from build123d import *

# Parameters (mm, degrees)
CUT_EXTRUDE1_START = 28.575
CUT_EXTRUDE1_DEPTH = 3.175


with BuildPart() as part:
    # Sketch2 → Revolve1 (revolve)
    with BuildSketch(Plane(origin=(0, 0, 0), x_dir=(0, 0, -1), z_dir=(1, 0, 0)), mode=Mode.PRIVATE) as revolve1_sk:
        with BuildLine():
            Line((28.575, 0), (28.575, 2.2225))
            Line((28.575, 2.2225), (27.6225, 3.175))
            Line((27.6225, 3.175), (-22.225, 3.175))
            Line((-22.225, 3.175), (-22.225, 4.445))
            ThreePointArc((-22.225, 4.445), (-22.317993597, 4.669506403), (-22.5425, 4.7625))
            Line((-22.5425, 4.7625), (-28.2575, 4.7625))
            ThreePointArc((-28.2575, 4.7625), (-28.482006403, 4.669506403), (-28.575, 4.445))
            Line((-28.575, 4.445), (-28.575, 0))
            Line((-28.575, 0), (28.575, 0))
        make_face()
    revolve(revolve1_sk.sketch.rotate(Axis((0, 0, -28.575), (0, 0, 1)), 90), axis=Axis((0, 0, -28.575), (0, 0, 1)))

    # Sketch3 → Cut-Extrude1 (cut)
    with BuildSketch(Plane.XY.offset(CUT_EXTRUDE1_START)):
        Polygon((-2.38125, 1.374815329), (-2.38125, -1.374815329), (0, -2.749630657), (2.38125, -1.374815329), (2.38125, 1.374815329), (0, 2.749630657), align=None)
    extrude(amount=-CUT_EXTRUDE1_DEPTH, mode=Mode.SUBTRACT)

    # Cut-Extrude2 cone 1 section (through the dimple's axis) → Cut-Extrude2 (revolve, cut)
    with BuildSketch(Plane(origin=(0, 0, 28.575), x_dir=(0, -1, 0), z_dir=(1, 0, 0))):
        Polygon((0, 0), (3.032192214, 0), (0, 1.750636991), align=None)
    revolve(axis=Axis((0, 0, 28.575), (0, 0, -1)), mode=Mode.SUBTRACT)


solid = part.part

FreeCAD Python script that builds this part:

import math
import FreeCAD as App
import Part
import Sketcher
from FreeCAD import Vector
Q = App.Units.Quantity

doc = App.newDocument("Part")
params = doc.addObject("Spreadsheet::Sheet", "Params")
for row, (alias, value) in enumerate([
    ("sketch1_width", "0.05 in"),
    ("sketch1_height", "2.25 in"),
    ("sketch1_width2", "0.175 in"),
    ("revolution_angle", "360 deg"),
    ("pocket1_length", "0.125 in"),
    ("groove_angle", "360 deg"),
], start=1):
    params.set(f"A{row}", alias)
    params.set(f"B{row}", "=" + value)
    params.setAlias(f"B{row}", alias)

body = doc.addObject("PartDesign::Body", "Body")

# Sketch on YZ plane
sketch1 = body.newObject("Sketcher::SketchObject", "Sketch")
sketch1.AttachmentSupport = (doc.getObject("YZ_Plane"), [""])
sketch1.MapMode = "FlatFace"
sketch1.addGeometry([
    Part.LineSegment(Vector(0, -28.57, 0), Vector(2.22, -28.57, 0)),  # 0
    Part.LineSegment(Vector(2.22, -28.57, 0), Vector(3.17, -27.62, 0)),  # 1
    Part.LineSegment(Vector(3.17, -27.62, 0), Vector(3.17, 22.23, 0)),  # 2
    Part.LineSegment(Vector(3.17, 22.23, 0), Vector(4.45, 22.23, 0)),  # 3
    Part.ArcOfCircle(Part.Circle(Vector(4.45, 22.54, 0), Vector(0, 0, 1), 0.32), math.radians(-90), math.radians(0)),  # 4
    Part.LineSegment(Vector(4.76, 22.54, 0), Vector(4.76, 28.26, 0)),  # 5
    Part.ArcOfCircle(Part.Circle(Vector(4.45, 28.26, 0), Vector(0, 0, 1), 0.32), math.radians(0), math.radians(90)),  # 6
    Part.LineSegment(Vector(4.45, 28.57, 0), Vector(0, 28.57, 0)),  # 7
    Part.LineSegment(Vector(0, 28.57, 0), Vector(0, -28.57, 0)),  # 8
], False)
sketch1.addConstraint([
    Sketcher.Constraint("Coincident", 0, 2, 1, 1),
    Sketcher.Constraint("Coincident", 1, 2, 2, 1),
    Sketcher.Constraint("Coincident", 2, 2, 3, 1),
    Sketcher.Constraint("Tangent", 3, 2, 4, 1),
    Sketcher.Constraint("Tangent", 4, 2, 5, 1),
    Sketcher.Constraint("Tangent", 5, 2, 6, 1),
    Sketcher.Constraint("Tangent", 6, 2, 7, 1),
    Sketcher.Constraint("Coincident", 7, 2, 8, 1),
    Sketcher.Constraint("Coincident", 8, 2, 0, 1),
    Sketcher.Constraint("Horizontal", 0),
    Sketcher.Constraint("Vertical", 2),
    Sketcher.Constraint("Horizontal", 3),
    Sketcher.Constraint("Vertical", 5),
    Sketcher.Constraint("Horizontal", 7),
    Sketcher.Constraint("Vertical", 8),
    Sketcher.Constraint("Equal", 4, 6),
    Sketcher.Constraint("Symmetric", 7, 2, 8, 2, -1, 1),
    Sketcher.Constraint("Angle", 1, Q("45 deg")),
    Sketcher.Constraint("DistanceY", 0, 2, 2, 2, Q("2 in")),
    Sketcher.Constraint("DistanceX", 3, 1, 3, 2, Q("0.05 in")),
    Sketcher.Constraint("DistanceY", 8, 2, 8, 1, Q("2.25 in")),
    Sketcher.Constraint("Radius", 4, Q("0.0125 in")),
    Sketcher.Constraint("DistanceY", 1, 2, 6, 3, Q("2.2 in")),
    Sketcher.Constraint("DistanceX", 7, 2, 7, 1, Q("0.175 in")),
])
sketch1.setExpression("Constraints[19]", "Params.sketch1_width")
sketch1.setExpression("Constraints[20]", "Params.sketch1_height")
sketch1.setExpression("Constraints[23]", "Params.sketch1_width2")
revolution = body.newObject("PartDesign::Revolution", "Revolution")
revolution.Profile = sketch1
revolution.ReferenceAxis = (sketch1, ["V_Axis"])
revolution.setExpression("Angle", "Params.revolution_angle")

# Sketch on XY plane
sketch2 = body.newObject("Sketcher::SketchObject", "Sketch001")
sketch2.AttachmentSupport = (doc.getObject("XY_Plane"), [""])
sketch2.MapMode = "FlatFace"
sketch2.AttachmentOffset = App.Placement(Vector(0, 0, 1.125 * 25.4), App.Rotation())
sketch2.addGeometry([
    Part.LineSegment(Vector(-2.4, 1.4, 0), Vector(-2.4, -1.4, 0)),  # 0
    Part.LineSegment(Vector(-2.4, -1.4, 0), Vector(0, -2.7, 0)),  # 1
    Part.LineSegment(Vector(0, -2.7, 0), Vector(2.4, -1.4, 0)),  # 2
    Part.LineSegment(Vector(2.4, -1.4, 0), Vector(2.4, 1.4, 0)),  # 3
    Part.LineSegment(Vector(2.4, 1.4, 0), Vector(0, 2.7, 0)),  # 4
    Part.LineSegment(Vector(0, 2.7, 0), Vector(-2.4, 1.4, 0)),  # 5
], False)
sketch2.addConstraint([
    Sketcher.Constraint("Coincident", 0, 2, 1, 1),
    Sketcher.Constraint("Coincident", 1, 2, 2, 1),
    Sketcher.Constraint("Coincident", 2, 2, 3, 1),
    Sketcher.Constraint("Coincident", 3, 2, 4, 1),
    Sketcher.Constraint("Coincident", 4, 2, 5, 1),
    Sketcher.Constraint("Coincident", 5, 2, 0, 1),
    Sketcher.Constraint("Vertical", 0),
    Sketcher.Constraint("Vertical", 3),
    Sketcher.Constraint("Symmetric", 0, 2, 3, 2, -1, 1),
    Sketcher.Constraint("Symmetric", 1, 2, 4, 2, -1, 1),
    Sketcher.Constraint("PointOnObject", 1, 2, -2),
    Sketcher.Constraint("Parallel", 2, 5),
    Sketcher.Constraint("Horizontal", 0, 2, 2, 2),
    Sketcher.Constraint("Angle", 1, Q("-30 deg")),
    Sketcher.Constraint("DistanceX", 0, 2, -1, 1, Q("0.09375 in")),
    Sketcher.Constraint("DistanceY", 0, 2, 0, 1, Q("2.749631 mm")),
])
pocket1 = body.newObject("PartDesign::Pocket", "Pocket")
pocket1.Profile = sketch2
pocket1.setExpression("Length", "Params.pocket1_length")

# Sketch on YZ plane
sketch3 = body.newObject("Sketcher::SketchObject", "Sketch002")
sketch3.AttachmentSupport = (doc.getObject("YZ_Plane"), [""])
sketch3.MapMode = "FlatFace"
sketch3.addGeometry([
    Part.LineSegment(Vector(0, 28.6, 0), Vector(-3, 28.6, 0)),
    Part.LineSegment(Vector(-3, 28.6, 0), Vector(0, 26.8, 0)),
    Part.LineSegment(Vector(0, 26.8, 0), Vector(0, 28.6, 0)),
], False)
sketch3.addConstraint([
    Sketcher.Constraint("Coincident", 0, 2, 1, 1),
    Sketcher.Constraint("Coincident", 1, 2, 2, 1),
    Sketcher.Constraint("Coincident", 2, 2, 0, 1),
    Sketcher.Constraint("Horizontal", 0),
    Sketcher.Constraint("Vertical", 2),
    Sketcher.Constraint("PointOnObject", 1, 2, -2),
    Sketcher.Constraint("Angle", 1, Q("-30 deg")),
    Sketcher.Constraint("DistanceY", -1, 1, 0, 2, Q("1.125 in")),
    Sketcher.Constraint("DistanceX", 0, 2, 0, 1, Q("3.032192 mm")),
])
groove = body.newObject("PartDesign::Groove", "Groove")
groove.Profile = sketch3
groove.ReferenceAxis = (sketch3, ["V_Axis"])
groove.setExpression("Angle", "Params.groove_angle")

doc.recompute()
